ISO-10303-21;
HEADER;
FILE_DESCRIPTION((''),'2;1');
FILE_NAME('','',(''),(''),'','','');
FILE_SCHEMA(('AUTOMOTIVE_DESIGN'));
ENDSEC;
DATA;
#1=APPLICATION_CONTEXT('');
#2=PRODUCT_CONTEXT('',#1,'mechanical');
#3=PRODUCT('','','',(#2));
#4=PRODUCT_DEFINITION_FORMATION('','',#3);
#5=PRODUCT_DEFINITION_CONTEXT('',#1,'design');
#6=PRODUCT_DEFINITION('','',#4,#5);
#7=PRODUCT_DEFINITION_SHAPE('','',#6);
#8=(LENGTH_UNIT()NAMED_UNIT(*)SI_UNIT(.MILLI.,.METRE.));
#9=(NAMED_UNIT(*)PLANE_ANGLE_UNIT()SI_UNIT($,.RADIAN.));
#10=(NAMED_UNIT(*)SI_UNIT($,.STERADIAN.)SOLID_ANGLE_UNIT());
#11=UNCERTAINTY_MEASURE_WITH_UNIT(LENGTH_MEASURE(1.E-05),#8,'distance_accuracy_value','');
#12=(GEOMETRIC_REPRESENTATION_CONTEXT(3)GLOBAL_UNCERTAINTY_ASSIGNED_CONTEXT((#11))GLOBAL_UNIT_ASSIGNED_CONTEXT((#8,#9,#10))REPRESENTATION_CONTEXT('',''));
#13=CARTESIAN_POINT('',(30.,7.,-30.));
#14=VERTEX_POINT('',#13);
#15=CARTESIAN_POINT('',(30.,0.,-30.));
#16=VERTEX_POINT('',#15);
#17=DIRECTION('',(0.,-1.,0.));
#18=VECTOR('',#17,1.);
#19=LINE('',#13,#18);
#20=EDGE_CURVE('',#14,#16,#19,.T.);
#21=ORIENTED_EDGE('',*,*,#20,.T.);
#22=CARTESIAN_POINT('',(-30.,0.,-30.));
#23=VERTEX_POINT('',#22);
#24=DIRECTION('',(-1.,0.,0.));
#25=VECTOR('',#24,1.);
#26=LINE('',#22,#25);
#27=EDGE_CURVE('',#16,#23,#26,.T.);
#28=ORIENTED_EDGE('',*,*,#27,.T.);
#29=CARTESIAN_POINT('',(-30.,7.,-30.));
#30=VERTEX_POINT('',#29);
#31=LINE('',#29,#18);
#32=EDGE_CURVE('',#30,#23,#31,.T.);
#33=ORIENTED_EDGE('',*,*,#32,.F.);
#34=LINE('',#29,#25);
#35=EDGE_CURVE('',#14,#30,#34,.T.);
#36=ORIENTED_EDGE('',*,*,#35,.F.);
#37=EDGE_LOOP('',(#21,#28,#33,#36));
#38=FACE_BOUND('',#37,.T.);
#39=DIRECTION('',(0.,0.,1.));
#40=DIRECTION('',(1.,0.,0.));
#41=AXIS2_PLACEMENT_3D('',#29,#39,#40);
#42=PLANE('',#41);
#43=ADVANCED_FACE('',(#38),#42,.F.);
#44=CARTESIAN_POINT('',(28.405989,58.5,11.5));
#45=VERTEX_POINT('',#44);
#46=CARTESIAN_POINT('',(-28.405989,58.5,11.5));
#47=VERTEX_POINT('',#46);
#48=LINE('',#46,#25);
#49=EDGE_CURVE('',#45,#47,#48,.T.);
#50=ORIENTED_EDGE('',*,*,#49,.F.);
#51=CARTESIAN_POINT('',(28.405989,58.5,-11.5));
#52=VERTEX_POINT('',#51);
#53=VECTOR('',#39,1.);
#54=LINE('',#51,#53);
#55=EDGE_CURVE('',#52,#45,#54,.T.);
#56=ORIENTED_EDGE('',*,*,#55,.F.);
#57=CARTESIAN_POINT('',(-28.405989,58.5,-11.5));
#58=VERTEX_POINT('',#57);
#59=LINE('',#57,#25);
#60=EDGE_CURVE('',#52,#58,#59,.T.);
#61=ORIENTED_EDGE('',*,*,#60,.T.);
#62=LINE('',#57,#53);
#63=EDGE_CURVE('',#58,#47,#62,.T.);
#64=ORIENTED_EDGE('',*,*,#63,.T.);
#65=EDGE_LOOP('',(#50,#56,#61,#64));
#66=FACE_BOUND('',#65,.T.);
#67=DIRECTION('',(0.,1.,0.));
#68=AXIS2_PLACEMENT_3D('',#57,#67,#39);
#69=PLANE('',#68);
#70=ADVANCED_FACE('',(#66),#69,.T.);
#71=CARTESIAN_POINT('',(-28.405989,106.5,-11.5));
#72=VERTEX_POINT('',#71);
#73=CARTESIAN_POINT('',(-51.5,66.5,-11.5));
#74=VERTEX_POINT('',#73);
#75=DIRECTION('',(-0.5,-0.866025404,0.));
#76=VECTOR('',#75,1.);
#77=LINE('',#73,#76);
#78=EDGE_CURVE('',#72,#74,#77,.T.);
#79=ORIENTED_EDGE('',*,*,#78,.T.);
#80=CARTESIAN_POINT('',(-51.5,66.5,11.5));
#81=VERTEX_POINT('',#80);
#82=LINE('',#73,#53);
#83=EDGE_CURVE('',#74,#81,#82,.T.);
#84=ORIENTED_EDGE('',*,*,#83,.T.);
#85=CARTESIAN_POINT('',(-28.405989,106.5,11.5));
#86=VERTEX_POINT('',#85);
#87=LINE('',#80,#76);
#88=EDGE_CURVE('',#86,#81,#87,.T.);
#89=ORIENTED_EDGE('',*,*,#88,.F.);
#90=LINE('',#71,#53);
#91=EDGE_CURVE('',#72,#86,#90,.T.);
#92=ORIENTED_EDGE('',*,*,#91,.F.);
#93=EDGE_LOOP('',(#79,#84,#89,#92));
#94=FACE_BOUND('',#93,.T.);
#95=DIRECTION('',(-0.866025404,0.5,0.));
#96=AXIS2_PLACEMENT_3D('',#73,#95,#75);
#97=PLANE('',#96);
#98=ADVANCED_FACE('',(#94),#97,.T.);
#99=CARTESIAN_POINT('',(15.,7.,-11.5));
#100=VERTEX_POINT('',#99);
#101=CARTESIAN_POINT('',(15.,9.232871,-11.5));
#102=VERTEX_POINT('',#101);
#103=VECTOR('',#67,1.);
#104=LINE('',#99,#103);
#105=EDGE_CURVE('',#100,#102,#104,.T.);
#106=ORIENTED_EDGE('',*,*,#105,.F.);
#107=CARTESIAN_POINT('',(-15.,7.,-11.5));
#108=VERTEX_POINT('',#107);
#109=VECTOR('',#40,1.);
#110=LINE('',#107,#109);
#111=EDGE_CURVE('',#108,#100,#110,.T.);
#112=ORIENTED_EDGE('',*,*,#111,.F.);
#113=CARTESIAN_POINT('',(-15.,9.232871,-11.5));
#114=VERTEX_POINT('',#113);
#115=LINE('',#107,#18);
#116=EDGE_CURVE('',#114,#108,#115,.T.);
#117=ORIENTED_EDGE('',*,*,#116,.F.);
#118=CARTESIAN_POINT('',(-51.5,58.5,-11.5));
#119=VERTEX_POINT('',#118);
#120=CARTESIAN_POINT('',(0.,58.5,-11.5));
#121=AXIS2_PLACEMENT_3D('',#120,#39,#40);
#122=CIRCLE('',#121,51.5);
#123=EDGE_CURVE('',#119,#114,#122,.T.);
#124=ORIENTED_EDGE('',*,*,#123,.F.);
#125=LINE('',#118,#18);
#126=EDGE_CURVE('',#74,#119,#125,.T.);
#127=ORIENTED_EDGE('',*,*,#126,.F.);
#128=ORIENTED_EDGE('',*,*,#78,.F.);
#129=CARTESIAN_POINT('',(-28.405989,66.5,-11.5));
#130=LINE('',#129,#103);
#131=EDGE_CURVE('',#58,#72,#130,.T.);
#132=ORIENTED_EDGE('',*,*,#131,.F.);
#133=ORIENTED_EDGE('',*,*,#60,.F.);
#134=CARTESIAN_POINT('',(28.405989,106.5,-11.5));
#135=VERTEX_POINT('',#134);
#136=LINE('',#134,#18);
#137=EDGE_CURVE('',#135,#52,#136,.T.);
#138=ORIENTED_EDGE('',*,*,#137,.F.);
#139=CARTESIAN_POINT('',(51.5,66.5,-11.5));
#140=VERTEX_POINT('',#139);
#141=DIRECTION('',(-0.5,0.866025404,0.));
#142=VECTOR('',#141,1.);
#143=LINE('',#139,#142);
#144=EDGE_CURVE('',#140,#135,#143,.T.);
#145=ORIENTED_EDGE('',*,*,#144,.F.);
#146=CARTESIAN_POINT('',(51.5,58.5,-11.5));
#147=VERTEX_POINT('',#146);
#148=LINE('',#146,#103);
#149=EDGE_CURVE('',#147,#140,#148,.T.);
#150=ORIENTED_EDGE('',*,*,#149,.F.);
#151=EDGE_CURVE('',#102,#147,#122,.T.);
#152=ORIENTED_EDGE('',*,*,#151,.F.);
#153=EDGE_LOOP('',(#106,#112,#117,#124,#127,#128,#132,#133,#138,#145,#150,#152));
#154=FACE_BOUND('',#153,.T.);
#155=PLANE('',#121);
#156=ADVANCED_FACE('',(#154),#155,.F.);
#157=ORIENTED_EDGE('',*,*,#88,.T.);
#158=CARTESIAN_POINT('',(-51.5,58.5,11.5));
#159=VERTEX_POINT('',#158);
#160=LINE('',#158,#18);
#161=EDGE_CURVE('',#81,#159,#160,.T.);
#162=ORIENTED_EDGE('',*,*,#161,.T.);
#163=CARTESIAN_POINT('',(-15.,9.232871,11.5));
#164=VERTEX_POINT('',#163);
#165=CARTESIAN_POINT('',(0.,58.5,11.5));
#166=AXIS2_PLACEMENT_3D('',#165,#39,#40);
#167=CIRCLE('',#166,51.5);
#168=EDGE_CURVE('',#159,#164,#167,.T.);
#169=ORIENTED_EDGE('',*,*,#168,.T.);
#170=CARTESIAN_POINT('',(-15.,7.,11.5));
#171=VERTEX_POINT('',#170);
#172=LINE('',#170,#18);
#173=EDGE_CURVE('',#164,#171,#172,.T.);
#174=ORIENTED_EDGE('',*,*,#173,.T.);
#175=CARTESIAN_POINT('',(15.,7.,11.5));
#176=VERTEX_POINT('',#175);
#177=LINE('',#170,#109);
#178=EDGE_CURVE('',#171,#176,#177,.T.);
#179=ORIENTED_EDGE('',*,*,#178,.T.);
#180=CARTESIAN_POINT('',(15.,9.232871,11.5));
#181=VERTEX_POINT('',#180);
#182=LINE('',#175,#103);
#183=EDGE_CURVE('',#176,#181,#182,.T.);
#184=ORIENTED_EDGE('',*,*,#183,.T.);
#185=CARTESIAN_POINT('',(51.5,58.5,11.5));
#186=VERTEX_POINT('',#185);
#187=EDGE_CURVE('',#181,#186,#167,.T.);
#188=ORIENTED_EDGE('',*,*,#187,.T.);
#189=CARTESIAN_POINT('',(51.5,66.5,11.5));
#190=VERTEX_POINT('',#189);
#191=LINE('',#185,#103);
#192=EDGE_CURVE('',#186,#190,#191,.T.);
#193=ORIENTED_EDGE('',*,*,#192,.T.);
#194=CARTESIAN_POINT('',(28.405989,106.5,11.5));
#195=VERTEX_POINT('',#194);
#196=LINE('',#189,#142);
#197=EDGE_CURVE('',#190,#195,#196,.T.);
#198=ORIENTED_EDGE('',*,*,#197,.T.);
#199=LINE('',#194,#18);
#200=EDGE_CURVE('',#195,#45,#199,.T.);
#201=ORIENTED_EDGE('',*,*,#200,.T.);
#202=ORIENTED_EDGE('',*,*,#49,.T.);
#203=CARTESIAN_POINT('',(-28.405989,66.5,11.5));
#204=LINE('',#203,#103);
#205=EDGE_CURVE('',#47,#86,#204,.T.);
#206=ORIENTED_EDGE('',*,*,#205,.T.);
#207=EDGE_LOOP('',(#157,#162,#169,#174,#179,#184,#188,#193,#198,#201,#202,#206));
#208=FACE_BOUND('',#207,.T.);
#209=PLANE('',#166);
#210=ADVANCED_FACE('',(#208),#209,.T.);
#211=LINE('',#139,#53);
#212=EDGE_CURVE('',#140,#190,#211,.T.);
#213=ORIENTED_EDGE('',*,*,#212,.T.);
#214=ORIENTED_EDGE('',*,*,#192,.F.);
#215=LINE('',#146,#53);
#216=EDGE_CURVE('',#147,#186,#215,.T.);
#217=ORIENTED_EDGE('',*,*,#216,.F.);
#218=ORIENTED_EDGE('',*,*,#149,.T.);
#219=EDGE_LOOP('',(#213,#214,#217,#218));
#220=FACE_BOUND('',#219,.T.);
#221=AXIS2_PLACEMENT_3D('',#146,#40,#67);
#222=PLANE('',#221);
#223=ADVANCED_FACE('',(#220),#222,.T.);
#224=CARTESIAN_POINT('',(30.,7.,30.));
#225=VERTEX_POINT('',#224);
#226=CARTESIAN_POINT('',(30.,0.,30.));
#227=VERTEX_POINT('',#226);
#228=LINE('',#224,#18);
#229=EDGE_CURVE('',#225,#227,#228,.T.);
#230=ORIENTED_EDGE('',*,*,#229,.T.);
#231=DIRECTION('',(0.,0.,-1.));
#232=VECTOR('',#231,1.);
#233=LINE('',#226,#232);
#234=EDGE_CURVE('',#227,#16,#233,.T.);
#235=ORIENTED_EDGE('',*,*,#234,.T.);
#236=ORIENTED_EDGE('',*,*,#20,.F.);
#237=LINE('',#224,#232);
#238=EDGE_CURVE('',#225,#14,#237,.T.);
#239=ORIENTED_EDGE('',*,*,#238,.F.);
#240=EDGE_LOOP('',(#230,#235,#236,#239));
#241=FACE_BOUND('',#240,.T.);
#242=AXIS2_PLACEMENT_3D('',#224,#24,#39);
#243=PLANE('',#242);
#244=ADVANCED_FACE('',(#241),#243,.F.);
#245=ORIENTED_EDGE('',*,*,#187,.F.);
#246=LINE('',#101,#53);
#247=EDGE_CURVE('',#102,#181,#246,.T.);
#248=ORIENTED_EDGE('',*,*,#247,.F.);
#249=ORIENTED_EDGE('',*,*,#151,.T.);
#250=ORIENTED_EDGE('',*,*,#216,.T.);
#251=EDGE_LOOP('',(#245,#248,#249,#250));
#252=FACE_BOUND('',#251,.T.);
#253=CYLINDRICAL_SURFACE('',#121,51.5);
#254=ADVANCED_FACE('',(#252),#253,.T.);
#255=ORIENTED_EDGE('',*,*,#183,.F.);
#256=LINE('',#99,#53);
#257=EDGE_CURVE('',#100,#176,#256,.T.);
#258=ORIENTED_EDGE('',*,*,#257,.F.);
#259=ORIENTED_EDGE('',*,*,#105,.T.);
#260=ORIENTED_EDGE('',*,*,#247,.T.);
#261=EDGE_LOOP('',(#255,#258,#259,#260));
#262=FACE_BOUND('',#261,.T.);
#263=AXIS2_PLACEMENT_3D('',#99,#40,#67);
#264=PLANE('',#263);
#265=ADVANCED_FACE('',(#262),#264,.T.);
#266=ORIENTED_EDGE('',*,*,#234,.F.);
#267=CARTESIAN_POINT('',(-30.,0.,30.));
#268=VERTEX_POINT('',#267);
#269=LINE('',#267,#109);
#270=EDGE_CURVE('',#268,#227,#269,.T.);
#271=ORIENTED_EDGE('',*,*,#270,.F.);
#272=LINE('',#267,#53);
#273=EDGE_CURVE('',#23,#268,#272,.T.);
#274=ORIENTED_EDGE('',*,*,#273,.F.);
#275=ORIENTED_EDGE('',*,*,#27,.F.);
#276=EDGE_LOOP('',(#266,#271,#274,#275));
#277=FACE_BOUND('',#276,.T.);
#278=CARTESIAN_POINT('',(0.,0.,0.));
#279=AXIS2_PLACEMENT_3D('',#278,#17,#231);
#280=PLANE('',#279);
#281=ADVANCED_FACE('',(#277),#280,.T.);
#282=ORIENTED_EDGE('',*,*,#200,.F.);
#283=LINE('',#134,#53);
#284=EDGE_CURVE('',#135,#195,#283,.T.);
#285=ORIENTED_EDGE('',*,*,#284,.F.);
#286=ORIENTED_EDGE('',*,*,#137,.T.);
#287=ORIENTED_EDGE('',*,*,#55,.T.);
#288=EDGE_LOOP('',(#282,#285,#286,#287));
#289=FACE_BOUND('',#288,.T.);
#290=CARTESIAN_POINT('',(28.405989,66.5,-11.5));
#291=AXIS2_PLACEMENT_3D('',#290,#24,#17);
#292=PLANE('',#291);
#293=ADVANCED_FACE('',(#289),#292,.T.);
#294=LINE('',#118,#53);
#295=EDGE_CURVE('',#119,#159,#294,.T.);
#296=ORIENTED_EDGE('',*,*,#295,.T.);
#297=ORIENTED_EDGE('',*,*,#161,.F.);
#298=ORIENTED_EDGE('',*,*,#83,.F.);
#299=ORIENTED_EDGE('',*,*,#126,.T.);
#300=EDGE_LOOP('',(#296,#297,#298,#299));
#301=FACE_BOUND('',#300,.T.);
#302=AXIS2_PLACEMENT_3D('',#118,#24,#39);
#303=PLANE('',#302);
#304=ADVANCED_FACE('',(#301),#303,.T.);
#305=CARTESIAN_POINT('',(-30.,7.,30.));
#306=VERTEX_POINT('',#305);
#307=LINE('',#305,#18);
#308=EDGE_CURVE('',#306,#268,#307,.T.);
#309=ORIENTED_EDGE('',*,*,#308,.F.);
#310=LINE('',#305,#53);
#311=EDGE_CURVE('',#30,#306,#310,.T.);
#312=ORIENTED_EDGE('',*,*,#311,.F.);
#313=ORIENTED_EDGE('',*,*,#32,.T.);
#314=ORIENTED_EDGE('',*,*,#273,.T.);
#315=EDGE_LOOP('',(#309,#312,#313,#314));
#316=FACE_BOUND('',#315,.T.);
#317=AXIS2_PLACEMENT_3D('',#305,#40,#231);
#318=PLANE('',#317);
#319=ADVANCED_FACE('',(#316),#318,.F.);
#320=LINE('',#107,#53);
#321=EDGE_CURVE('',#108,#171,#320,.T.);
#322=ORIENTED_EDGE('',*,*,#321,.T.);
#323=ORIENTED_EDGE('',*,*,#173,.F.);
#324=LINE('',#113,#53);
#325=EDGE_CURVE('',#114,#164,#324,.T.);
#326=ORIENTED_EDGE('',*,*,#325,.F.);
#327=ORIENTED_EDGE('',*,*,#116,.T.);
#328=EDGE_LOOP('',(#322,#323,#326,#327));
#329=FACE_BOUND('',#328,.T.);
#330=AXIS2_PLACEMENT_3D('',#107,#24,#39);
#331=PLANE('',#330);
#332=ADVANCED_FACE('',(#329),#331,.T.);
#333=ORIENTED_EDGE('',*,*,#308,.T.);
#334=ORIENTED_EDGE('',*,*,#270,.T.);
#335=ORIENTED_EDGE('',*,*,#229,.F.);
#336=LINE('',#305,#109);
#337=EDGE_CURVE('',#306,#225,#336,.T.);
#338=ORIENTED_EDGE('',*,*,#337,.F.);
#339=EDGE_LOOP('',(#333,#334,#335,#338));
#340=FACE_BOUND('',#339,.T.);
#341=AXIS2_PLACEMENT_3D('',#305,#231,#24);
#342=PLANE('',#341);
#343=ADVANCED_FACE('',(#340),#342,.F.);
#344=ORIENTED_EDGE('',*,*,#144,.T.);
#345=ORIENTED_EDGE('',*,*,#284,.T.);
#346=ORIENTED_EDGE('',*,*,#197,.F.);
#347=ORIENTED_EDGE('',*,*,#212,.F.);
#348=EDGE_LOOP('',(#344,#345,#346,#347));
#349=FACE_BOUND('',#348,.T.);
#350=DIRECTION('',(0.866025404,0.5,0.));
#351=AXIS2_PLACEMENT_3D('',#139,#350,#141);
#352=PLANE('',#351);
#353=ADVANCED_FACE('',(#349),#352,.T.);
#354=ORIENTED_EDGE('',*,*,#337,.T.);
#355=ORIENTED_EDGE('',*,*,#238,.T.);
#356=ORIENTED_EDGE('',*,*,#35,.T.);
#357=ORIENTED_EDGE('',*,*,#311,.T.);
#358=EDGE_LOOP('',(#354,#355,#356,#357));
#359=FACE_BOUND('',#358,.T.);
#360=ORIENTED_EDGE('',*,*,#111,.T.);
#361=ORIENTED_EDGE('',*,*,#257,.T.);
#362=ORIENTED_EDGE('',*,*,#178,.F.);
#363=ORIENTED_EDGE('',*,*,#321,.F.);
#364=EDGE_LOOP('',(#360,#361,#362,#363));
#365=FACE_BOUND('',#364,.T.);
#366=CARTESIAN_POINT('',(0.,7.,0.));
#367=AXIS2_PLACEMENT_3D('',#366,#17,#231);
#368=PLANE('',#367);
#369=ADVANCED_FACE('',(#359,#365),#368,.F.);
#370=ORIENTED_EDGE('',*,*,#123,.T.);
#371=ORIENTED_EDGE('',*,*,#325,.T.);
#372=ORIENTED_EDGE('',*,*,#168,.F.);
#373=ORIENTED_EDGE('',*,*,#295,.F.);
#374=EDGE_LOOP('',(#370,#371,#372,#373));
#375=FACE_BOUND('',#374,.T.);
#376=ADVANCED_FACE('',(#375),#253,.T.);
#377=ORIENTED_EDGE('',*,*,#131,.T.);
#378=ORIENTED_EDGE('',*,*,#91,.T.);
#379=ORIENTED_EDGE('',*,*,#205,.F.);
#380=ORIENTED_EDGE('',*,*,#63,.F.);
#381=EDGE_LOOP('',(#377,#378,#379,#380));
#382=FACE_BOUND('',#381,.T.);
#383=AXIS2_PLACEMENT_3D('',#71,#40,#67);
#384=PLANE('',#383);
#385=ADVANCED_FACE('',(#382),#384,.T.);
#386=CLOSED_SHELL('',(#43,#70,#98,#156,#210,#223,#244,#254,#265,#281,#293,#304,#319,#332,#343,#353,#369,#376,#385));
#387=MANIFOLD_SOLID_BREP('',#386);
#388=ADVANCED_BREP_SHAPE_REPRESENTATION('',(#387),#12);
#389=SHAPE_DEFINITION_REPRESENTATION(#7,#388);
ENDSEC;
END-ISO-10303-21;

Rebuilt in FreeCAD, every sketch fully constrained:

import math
import FreeCAD as App
import Part
import Sketcher
Q = App.Units.Quantity


def add_polygon(sketch, points):
    """Adds a closed chain of lines whose ends are joined by coincident constraints."""
    first, n = sketch.GeometryCount, len(points)
    for a, b in zip(points, points[1:] + points[:1]):
        sketch.addGeometry(Part.LineSegment(App.Vector(*a, 0), App.Vector(*b, 0)), False)
    for i in range(n):
        sketch.addConstraint(Sketcher.Constraint("Coincident", first + i, 2, first + (i + 1) % n, 1))

doc = App.newDocument("Part")
params = doc.addObject("Spreadsheet::Sheet", "Params")
for row, (alias, value) in enumerate([
    ("sketch1_width", "60 mm"),
    ("pad1_length", "7 mm"),
    ("sketch2_radius", "51.5 mm"),
    ("sketch2_width", "30 mm"),
    ("sketch2_height", "48 mm"),
    ("sketch2_height2", "8 mm"),
    ("pad2_length", "11.5 mm"),
    ("pad2_length2", "11.5 mm"),
], start=1):
    params.set(f"A{row}", alias)
    params.set(f"B{row}", "=" + value)
    params.setAlias(f"B{row}", alias)

body = doc.addObject("PartDesign::Body", "Body")

# Sketch on XZ plane
sketch1 = body.newObject("Sketcher::SketchObject", "Sketch")
sketch1.AttachmentSupport = (doc.getObject("XZ_Plane"), [""])
sketch1.MapMode = "FlatFace"
add_polygon(sketch1, [(-30, -30), (-30, 30), (30, 30), (30, -30)])  # lines 0-3
sketch1.addConstraint(Sketcher.Constraint("Vertical", 0))
sketch1.addConstraint(Sketcher.Constraint("Horizontal", 1))
sketch1.addConstraint(Sketcher.Constraint("Vertical", 2))
sketch1.addConstraint(Sketcher.Constraint("Horizontal", 3))
sketch1.addConstraint(Sketcher.Constraint("Symmetric", 0, 2, 2, 2, -1, 1))
sketch1.addConstraint(Sketcher.Constraint("Equal", 3, 0))
sketch1.addConstraint(Sketcher.Constraint("DistanceX", 1, 1, 1, 2, 60.0))
sketch1.setExpression("Constraints[10]", "Params.sketch1_width")
pad1 = body.newObject("PartDesign::Pad", "Pad")
pad1.Profile = sketch1
pad1.setExpression("Length", "Params.pad1_length")
pad1.Reversed = True

# Sketch on XY plane
sketch2 = body.newObject("Sketcher::SketchObject", "Sketch001")
sketch2.AttachmentSupport = (doc.getObject("XY_Plane"), [""])
sketch2.MapMode = "FlatFace"
sketch2.addGeometry(Part.LineSegment(App.Vector(28.4, 58.5, 0), App.Vector(-28.4, 58.5, 0)), False)
sketch2.addGeometry(Part.LineSegment(App.Vector(-28.4, 58.5, 0), App.Vector(-28.4, 106.5, 0)), False)
sketch2.addGeometry(Part.LineSegment(App.Vector(-28.4, 106.5, 0), App.Vector(-51.5, 66.5, 0)), False)
sketch2.addGeometry(Part.LineSegment(App.Vector(-51.5, 66.5, 0), App.Vector(-51.5, 58.5, 0)), False)
sketch2.addGeometry(Part.ArcOfCircle(Part.Circle(App.Vector(0, 58.5, 0), App.Vector(0, 0, 1), 51.5), math.radians(180), math.radians(253)), False)
sketch2.addGeometry(Part.LineSegment(App.Vector(-15, 9.2, 0), App.Vector(-15, 7, 0)), False)
sketch2.addGeometry(Part.LineSegment(App.Vector(-15, 7, 0), App.Vector(15, 7, 0)), False)
sketch2.addGeometry(Part.LineSegment(App.Vector(15, 7, 0), App.Vector(15, 9.2, 0)), False)
sketch2.addGeometry(Part.ArcOfCircle(Part.Circle(App.Vector(0, 58.5, 0), App.Vector(0, 0, 1), 51.5), math.radians(-73), math.radians(0)), False)
sketch2.addGeometry(Part.LineSegment(App.Vector(51.5, 58.5, 0), App.Vector(51.5, 66.5, 0)), False)
sketch2.addGeometry(Part.LineSegment(App.Vector(51.5, 66.5, 0), App.Vector(28.4, 106.5, 0)), False)
sketch2.addGeometry(Part.LineSegment(App.Vector(28.4, 106.5, 0), App.Vector(28.4, 58.5, 0)), False)
sketch2.addConstraint(Sketcher.Constraint("Coincident", 0, 2, 1, 1))
sketch2.addConstraint(Sketcher.Constraint("Coincident", 1, 2, 2, 1))
sketch2.addConstraint(Sketcher.Constraint("Coincident", 2, 2, 3, 1))
sketch2.addConstraint(Sketcher.Constraint("Tangent", 3, 2, 4, 1))
sketch2.addConstraint(Sketcher.Constraint("Coincident", 4, 2, 5, 1))
sketch2.addConstraint(Sketcher.Constraint("Coincident", 5, 2, 6, 1))
sketch2.addConstraint(Sketcher.Constraint("Coincident", 6, 2, 7, 1))
sketch2.addConstraint(Sketcher.Constraint("Coincident", 7, 2, 8, 1))
sketch2.addConstraint(Sketcher.Constraint("Tangent", 8, 2, 9, 1))
sketch2.addConstraint(Sketcher.Constraint("Coincident", 9, 2, 10, 1))
sketch2.addConstraint(Sketcher.Constraint("Coincident", 10, 2, 11, 1))
sketch2.addConstraint(Sketcher.Constraint("Coincident", 11, 2, 0, 1))
sketch2.addConstraint(Sketcher.Constraint("Horizontal", 0))
sketch2.addConstraint(Sketcher.Constraint("Vertical", 1))
sketch2.addConstraint(Sketcher.Constraint("Vertical", 3))
sketch2.addConstraint(Sketcher.Constraint("Vertical", 5))
sketch2.addConstraint(Sketcher.Constraint("Horizontal", 6))
sketch2.addConstraint(Sketcher.Constraint("Vertical", 7))
sketch2.addConstraint(Sketcher.Constraint("Vertical", 9))
sketch2.addConstraint(Sketcher.Constraint("Vertical", 11))
sketch2.addConstraint(Sketcher.Constraint("Coincident", 8, 3, 4, 3))
sketch2.addConstraint(Sketcher.Constraint("Equal", 4, 8))
sketch2.addConstraint(Sketcher.Constraint("Symmetric", 4, 2, 7, 2, -2))
sketch2.addConstraint(Sketcher.Constraint("Symmetric", 1, 2, 10, 2, -2))
sketch2.addConstraint(Sketcher.Constraint("Horizontal", 8, 3, 0, 2))
sketch2.addConstraint(Sketcher.Constraint("Horizontal", 2, 2, 9, 2))
sketch2.addConstraint(Sketcher.Constraint("Radius", 4, 51.5))
sketch2.addConstraint(Sketcher.Constraint("DistanceX", 6, 1, 6, 2, 30.0))
sketch2.addConstraint(Sketcher.Constraint("DistanceY", 1, 1, 1, 2, 48.0))
sketch2.addConstraint(Sketcher.Constraint("DistanceY", 3, 2, 3, 1, 8.0))
sketch2.addConstraint(Sketcher.Constraint("Angle", 2, Q("-120 deg")))
sketch2.addConstraint(Sketcher.Constraint("DistanceY", -1, 1, 5, 2, 7.0))
sketch2.addConstraint(Sketcher.Constraint("DistanceY", -1, 1, 4, 3, 58.5))
sketch2.setExpression("Constraints[26]", "Params.sketch2_radius")
sketch2.setExpression("Constraints[27]", "Params.sketch2_width")
sketch2.setExpression("Constraints[28]", "Params.sketch2_height")
sketch2.setExpression("Constraints[29]", "Params.sketch2_height2")
pad2 = body.newObject("PartDesign::Pad", "Pad001")
pad2.Profile = sketch2
pad2.Type = "TwoLengths"
pad2.setExpression("Length", "Params.pad2_length")
pad2.setExpression("Length2", "Params.pad2_length2")

doc.recompute()
